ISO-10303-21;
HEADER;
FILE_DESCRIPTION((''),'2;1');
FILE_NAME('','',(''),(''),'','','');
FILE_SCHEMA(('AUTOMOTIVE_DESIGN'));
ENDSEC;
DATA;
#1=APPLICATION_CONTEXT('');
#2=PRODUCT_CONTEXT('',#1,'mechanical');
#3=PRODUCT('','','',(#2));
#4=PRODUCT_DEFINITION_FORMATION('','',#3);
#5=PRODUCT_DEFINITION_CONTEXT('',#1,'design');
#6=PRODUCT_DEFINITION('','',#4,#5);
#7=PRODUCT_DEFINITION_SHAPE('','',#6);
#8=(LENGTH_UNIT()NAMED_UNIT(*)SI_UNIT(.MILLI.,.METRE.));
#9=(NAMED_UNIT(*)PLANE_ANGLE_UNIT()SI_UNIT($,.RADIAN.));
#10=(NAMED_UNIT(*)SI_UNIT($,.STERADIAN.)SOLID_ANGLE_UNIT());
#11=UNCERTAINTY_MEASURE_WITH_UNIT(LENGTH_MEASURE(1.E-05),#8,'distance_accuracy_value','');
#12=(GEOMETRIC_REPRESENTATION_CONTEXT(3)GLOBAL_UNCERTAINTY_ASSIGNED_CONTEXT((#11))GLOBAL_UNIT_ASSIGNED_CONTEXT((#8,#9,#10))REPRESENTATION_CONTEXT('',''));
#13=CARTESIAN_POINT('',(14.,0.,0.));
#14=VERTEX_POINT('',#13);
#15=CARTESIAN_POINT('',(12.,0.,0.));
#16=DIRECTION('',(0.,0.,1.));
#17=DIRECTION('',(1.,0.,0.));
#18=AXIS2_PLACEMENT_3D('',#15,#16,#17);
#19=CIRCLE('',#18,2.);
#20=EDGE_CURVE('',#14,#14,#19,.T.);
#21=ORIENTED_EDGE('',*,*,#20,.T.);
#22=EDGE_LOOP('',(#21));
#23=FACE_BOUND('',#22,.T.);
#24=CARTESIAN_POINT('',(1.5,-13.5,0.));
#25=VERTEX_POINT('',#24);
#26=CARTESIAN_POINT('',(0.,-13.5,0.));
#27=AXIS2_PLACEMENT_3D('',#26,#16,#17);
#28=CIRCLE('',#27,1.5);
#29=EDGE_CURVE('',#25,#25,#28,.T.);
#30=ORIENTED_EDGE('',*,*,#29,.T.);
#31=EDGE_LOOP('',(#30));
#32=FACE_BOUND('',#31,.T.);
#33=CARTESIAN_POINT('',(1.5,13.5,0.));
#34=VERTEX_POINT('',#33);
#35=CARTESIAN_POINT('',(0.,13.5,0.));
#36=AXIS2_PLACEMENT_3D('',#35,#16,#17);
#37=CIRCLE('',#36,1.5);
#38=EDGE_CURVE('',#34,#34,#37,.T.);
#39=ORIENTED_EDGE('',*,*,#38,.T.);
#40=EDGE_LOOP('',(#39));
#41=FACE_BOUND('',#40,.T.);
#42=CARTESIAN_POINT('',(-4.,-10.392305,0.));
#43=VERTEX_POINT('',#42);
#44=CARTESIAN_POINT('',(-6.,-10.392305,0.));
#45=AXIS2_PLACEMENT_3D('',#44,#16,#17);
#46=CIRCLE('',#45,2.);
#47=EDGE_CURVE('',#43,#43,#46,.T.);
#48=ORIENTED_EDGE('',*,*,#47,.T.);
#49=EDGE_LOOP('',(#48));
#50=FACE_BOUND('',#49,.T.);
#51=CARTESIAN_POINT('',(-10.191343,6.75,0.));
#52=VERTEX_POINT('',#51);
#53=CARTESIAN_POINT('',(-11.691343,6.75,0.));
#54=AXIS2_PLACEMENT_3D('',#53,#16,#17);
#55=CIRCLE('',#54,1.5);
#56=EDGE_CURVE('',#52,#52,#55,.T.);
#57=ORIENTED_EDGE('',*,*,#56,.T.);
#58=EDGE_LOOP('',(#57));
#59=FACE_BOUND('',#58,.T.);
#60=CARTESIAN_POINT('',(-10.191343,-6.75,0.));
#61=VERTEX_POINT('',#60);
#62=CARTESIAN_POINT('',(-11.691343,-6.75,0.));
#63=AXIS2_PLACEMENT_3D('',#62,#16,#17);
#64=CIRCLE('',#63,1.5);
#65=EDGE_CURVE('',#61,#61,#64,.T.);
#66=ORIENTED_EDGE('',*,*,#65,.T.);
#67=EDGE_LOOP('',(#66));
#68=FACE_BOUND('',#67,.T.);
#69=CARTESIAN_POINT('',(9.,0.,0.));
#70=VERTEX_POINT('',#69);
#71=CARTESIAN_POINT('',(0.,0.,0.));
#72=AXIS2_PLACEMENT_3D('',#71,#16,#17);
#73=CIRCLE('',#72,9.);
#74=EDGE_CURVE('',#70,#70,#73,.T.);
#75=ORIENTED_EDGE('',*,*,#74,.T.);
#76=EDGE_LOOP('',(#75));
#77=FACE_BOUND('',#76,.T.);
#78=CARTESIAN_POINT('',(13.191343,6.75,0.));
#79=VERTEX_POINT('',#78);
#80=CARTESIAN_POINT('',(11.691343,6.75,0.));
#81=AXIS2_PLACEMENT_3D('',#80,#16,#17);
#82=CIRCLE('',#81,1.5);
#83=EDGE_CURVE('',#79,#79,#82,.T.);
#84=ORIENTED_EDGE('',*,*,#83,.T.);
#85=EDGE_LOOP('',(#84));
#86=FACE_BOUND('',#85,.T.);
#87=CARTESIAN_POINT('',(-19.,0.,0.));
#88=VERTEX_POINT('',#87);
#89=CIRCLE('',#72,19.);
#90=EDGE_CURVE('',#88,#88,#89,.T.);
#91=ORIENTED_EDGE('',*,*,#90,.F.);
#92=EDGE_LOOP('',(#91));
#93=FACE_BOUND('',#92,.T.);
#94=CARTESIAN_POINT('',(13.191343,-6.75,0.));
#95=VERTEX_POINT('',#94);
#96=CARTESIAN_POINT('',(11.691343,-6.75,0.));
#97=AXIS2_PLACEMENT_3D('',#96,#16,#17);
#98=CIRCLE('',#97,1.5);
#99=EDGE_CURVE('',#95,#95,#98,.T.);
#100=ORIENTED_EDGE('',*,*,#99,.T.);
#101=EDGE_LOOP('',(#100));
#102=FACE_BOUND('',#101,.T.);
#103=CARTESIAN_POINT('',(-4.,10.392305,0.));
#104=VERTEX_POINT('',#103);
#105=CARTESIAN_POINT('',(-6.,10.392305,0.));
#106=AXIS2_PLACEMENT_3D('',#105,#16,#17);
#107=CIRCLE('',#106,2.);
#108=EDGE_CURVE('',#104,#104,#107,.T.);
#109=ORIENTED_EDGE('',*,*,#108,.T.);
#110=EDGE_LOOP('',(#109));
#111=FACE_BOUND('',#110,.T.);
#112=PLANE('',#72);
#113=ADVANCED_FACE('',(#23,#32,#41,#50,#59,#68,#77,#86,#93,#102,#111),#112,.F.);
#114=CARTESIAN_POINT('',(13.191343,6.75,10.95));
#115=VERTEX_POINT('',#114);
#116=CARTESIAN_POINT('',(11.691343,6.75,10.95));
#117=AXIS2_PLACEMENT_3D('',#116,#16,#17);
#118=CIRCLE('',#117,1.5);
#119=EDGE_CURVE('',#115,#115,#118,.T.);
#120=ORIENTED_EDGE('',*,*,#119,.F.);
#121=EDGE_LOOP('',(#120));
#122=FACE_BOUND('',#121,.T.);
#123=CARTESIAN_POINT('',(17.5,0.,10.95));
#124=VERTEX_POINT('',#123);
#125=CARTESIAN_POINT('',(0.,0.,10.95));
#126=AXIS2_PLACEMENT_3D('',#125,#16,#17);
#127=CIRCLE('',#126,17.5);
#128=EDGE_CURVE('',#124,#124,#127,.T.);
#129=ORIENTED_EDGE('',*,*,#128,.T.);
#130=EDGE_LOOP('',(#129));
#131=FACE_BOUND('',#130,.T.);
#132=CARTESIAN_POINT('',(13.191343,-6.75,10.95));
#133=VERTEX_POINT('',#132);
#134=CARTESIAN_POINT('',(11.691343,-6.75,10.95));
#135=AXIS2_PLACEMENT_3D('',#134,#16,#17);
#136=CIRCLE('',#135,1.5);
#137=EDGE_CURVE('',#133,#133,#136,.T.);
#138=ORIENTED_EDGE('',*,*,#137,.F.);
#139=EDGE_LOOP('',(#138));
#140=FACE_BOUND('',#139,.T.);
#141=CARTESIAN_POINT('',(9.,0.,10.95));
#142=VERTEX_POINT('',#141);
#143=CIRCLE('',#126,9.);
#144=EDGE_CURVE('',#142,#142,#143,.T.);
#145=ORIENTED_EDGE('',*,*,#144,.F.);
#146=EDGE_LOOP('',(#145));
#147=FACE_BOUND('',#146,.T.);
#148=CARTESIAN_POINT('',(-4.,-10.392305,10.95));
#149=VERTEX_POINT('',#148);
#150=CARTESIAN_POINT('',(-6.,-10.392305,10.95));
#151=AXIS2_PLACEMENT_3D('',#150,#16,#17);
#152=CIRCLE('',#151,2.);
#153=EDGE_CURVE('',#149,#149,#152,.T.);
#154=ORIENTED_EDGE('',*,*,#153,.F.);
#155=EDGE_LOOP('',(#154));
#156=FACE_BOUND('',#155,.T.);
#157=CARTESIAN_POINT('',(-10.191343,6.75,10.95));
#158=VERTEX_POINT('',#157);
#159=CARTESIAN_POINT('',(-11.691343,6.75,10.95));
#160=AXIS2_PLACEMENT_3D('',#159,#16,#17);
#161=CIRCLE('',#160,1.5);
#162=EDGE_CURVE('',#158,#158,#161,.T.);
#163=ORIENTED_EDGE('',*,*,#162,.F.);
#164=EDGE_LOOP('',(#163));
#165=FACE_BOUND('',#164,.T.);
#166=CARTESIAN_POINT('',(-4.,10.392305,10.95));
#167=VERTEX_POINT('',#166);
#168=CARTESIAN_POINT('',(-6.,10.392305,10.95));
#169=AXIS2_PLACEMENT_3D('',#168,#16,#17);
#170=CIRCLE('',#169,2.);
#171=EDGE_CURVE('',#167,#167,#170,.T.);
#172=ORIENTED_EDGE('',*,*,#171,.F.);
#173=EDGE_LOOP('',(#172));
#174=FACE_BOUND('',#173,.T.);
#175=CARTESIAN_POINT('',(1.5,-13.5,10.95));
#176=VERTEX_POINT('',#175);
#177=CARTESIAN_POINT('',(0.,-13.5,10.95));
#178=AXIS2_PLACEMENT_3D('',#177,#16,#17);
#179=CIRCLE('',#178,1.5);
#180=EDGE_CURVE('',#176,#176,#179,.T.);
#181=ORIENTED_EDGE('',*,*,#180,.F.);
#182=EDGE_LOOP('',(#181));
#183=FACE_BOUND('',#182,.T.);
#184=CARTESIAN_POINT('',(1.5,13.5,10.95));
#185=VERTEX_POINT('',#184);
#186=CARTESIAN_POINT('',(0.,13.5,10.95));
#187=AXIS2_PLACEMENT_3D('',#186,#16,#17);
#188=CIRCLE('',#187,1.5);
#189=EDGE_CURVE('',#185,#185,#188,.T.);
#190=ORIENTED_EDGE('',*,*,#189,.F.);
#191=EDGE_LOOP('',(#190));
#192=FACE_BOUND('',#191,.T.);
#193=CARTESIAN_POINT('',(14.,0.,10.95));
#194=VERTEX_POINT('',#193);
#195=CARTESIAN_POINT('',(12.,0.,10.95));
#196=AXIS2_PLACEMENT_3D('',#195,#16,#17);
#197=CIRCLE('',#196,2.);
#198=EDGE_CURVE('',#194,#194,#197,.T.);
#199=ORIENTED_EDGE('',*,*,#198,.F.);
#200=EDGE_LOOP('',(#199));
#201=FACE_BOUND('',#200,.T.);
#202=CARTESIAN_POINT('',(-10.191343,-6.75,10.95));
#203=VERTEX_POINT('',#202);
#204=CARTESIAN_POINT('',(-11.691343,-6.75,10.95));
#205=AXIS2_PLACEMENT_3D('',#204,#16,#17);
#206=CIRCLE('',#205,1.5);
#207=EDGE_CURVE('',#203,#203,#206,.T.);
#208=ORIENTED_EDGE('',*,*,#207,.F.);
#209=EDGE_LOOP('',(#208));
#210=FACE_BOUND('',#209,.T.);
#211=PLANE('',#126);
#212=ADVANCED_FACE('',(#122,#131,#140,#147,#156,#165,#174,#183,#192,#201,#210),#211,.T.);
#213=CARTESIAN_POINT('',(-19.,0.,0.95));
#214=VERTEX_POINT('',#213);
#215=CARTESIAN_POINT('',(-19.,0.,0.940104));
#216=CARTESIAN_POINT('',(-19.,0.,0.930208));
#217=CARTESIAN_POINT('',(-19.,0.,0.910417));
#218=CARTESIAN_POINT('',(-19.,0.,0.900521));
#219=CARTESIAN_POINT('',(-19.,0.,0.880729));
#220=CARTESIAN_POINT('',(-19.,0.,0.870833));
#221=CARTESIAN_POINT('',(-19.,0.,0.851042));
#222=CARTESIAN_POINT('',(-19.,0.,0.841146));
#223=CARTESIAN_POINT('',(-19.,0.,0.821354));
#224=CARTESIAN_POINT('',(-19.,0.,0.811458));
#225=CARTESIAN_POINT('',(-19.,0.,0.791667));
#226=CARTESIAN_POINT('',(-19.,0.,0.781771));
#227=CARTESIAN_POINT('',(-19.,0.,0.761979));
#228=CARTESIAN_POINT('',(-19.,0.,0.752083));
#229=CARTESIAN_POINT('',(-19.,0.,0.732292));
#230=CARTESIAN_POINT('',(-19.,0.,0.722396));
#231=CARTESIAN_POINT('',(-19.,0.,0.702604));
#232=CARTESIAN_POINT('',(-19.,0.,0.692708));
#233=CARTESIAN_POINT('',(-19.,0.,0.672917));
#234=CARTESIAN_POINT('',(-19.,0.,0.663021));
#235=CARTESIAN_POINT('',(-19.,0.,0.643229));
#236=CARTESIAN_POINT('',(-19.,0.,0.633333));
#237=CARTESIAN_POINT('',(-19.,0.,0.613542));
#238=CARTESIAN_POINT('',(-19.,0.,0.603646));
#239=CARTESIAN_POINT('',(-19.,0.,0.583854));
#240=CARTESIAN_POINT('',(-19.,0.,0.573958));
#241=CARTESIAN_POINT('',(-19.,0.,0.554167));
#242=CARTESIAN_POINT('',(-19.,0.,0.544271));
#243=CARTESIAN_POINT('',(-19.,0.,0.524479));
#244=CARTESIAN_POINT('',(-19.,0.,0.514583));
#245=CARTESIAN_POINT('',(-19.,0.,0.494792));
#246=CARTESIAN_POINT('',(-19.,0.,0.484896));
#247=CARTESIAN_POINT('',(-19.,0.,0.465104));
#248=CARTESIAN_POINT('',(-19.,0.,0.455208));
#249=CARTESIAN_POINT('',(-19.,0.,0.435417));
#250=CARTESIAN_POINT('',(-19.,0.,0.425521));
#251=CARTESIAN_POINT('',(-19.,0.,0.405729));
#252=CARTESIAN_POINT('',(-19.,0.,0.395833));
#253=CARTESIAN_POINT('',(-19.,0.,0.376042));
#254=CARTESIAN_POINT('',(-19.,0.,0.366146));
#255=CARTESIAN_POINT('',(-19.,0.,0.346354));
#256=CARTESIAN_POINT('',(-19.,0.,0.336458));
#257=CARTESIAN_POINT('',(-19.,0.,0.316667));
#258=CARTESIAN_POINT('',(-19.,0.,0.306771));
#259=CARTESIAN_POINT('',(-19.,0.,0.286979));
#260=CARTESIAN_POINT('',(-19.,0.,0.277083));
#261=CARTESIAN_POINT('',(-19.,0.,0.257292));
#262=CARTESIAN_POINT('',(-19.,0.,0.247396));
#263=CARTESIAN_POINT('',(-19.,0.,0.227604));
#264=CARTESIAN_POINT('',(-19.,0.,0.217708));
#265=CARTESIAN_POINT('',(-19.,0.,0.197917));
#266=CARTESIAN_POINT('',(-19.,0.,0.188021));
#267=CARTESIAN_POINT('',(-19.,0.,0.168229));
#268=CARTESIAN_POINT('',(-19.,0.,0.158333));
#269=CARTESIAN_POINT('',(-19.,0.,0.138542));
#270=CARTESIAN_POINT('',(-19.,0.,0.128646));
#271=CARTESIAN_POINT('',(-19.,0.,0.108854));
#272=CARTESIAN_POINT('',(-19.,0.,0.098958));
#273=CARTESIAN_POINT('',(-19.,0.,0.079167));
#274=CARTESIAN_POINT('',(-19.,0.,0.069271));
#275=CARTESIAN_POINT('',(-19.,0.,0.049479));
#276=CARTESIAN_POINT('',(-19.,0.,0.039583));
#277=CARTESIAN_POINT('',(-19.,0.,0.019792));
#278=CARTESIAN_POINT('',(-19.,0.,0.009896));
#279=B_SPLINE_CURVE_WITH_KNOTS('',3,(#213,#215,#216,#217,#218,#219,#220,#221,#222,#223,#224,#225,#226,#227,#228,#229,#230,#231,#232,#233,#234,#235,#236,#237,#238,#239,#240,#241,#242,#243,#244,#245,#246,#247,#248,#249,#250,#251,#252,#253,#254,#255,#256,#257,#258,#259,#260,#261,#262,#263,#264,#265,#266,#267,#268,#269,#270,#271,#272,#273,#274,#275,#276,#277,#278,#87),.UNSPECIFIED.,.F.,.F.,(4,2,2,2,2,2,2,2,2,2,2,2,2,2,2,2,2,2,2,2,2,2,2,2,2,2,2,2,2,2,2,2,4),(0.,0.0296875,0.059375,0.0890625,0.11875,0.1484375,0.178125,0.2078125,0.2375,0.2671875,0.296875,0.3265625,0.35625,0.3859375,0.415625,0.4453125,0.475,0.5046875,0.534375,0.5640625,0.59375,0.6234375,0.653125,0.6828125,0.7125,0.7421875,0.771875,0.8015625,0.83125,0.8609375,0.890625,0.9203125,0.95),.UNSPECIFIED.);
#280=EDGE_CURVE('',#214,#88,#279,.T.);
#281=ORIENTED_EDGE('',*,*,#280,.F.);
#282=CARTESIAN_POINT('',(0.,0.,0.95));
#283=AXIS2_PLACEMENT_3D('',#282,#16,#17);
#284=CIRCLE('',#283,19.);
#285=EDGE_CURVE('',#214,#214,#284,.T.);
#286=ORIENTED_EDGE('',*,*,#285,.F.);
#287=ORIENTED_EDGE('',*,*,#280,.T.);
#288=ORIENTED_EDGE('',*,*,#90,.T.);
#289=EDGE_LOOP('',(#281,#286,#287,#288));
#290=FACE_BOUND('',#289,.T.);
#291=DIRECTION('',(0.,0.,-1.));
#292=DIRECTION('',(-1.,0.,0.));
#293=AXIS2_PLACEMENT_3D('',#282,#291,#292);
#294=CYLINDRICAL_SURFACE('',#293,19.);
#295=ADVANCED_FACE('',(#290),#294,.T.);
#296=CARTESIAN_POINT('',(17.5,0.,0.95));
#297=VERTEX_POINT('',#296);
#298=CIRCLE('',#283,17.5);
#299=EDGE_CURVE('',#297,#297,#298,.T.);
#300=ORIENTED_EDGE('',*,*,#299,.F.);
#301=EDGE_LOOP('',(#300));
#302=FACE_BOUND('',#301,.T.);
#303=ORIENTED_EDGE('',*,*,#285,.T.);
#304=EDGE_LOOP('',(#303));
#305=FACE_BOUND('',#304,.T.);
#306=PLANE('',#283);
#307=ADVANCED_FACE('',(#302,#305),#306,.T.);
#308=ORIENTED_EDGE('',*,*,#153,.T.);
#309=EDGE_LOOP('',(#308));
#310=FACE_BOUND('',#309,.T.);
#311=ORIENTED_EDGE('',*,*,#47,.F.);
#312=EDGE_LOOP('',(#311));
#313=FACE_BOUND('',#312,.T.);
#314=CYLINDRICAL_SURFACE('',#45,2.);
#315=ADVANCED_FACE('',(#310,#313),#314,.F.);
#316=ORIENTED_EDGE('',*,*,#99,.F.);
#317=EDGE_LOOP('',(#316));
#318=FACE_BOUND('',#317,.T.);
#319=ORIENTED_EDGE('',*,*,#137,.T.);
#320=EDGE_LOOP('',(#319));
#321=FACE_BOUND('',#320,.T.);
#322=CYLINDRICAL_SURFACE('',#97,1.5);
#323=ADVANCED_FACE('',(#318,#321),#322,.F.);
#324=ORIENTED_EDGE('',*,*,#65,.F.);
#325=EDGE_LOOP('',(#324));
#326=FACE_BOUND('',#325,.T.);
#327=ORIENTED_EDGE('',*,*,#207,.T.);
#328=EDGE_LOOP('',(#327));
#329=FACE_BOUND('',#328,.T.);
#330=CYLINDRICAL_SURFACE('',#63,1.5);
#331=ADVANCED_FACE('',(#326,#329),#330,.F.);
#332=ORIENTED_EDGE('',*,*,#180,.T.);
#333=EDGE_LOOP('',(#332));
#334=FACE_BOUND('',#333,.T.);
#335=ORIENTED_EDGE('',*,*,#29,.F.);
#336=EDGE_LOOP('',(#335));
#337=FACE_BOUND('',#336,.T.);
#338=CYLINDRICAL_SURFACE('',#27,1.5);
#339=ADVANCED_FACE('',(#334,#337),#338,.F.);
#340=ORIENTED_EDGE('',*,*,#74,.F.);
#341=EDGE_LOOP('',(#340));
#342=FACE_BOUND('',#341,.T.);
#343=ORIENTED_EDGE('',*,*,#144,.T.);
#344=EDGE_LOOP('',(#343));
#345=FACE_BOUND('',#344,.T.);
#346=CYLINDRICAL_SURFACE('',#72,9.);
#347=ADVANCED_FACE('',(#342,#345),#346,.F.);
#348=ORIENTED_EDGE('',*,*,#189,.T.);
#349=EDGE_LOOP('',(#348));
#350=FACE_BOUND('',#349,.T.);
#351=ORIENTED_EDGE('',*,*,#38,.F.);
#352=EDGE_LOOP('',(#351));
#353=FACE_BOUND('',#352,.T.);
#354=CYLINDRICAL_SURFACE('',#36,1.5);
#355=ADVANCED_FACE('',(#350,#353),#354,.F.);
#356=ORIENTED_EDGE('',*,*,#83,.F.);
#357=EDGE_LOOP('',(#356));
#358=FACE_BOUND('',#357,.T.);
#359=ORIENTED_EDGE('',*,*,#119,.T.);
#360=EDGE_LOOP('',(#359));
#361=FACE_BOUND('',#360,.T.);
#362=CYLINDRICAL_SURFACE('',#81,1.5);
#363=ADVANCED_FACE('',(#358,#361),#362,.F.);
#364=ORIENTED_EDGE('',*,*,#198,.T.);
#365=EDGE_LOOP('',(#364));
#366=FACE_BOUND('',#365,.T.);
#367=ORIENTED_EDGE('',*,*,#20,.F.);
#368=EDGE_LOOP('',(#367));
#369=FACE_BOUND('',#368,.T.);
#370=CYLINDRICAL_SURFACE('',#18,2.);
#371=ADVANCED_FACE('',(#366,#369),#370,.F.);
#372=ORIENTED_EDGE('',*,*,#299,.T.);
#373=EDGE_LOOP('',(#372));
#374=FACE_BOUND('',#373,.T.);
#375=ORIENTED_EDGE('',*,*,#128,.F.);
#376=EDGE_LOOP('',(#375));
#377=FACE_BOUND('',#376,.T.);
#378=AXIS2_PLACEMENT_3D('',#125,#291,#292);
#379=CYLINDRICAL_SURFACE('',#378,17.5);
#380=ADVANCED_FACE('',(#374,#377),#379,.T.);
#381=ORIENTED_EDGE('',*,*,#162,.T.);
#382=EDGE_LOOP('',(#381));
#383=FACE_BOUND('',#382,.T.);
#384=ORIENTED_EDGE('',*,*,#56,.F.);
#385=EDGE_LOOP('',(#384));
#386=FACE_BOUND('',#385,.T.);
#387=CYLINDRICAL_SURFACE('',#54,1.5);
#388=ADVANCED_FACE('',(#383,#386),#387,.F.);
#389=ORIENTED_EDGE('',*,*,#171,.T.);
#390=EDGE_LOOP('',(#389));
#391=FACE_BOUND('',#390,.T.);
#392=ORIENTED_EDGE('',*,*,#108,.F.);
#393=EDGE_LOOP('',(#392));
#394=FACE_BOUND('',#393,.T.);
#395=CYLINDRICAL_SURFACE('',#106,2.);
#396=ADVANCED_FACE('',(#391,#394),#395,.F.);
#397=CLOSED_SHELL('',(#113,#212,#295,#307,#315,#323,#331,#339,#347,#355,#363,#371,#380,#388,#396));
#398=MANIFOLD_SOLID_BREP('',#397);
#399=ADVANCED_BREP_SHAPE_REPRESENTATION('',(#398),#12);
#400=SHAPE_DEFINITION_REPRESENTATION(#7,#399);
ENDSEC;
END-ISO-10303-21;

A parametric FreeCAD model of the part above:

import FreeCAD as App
import Part
import Sketcher

doc = App.newDocument("Part")
body = doc.addObject("PartDesign::Body", "Body")

sketch1 = body.newObject("Sketcher::SketchObject", "Sketch")
sketch1.AttachmentSupport = (doc.getObject("XY_Plane"), [""])
sketch1.MapMode = "FlatFace"
sketch1.addGeometry(Part.Circle(App.Vector(0, 0, 0), App.Vector(0, 0, 1), 18), False)
sketch1.addConstraint([
    Sketcher.Constraint("Coincident", 0, 3, -1, 1),
    Sketcher.Constraint("Diameter", 0, 35.0),
])
pad1 = body.newObject("PartDesign::Pad", "Pad")
pad1.Profile = sketch1
pad1.Length = 10.95

sketch2 = body.newObject("Sketcher::SketchObject", "Sketch001")
sketch2.AttachmentSupport = (doc.getObject("XY_Plane"), [""])
sketch2.MapMode = "FlatFace"
sketch2.addGeometry([
    Part.Circle(App.Vector(0, 0, 0), App.Vector(0, 0, 1), 19),
    Part.Circle(App.Vector(0, 0, 0), App.Vector(0, 0, 1), 18),
], False)
sketch2.addConstraint([
    Sketcher.Constraint("Coincident", 0, 3, -1, 1),
    Sketcher.Constraint("Coincident", 1, 3, -1, 1),
    Sketcher.Constraint("Diameter", 0, 38.0),
    Sketcher.Constraint("Diameter", 1, 35.0),
])
pad2 = body.newObject("PartDesign::Pad", "Pad001")
pad2.Profile = sketch2
pad2.Length = 0.95

sketch3 = body.newObject("Sketcher::SketchObject", "Sketch002")
sketch3.AttachmentSupport = (doc.getObject("XY_Plane"), [""])
sketch3.MapMode = "FlatFace"
sketch3.AttachmentOffset = App.Placement(App.Vector(0, 0, 10.95), App.Rotation())
sketch3.addGeometry([
    Part.Circle(App.Vector(0, 0, 0), App.Vector(0, 0, 1), 9),
    Part.Circle(App.Vector(0, 13.5, 0), App.Vector(0, 0, 1), 1.5),
    Part.Circle(App.Vector(11.7, 6.8, 0), App.Vector(0, 0, 1), 1.5),
    Part.Circle(App.Vector(11.7, -6.8, 0), App.Vector(0, 0, 1), 1.5),
    Part.Circle(App.Vector(0, -13.5, 0), App.Vector(0, 0, 1), 1.5),
    Part.Circle(App.Vector(-11.7, -6.8, 0), App.Vector(0, 0, 1), 1.5),
    Part.Circle(App.Vector(-11.7, 6.8, 0), App.Vector(0, 0, 1), 1.5),
    Part.Circle(App.Vector(12, 0, 0), App.Vector(0, 0, 1), 2),
    Part.Circle(App.Vector(-6, -10.4, 0), App.Vector(0, 0, 1), 2),
    Part.Circle(App.Vector(-6, 10.4, 0), App.Vector(0, 0, 1), 2),
], False)
sketch3.addConstraint([
    Sketcher.Constraint("Coincident", 0, 3, -1, 1),
    Sketcher.Constraint("Equal", 1, 2),
    Sketcher.Constraint("Equal", 2, 3),
    Sketcher.Constraint("Equal", 3, 4),
    Sketcher.Constraint("Equal", 4, 5),
    Sketcher.Constraint("Equal", 5, 6),
    Sketcher.Constraint("Equal", 7, 8),
    Sketcher.Constraint("Equal", 8, 9),
    Sketcher.Constraint("Symmetric", 1, 3, 4, 3, -1, 1),
    Sketcher.Constraint("Symmetric", 2, 3, 5, 3, -1, 1),
    Sketcher.Constraint("Symmetric", 3, 3, 6, 3, -1, 1),
    Sketcher.Constraint("Symmetric", 3, 3, 5, 3, -2),
    Sketcher.Constraint("Symmetric", 8, 3, 9, 3, -1),
    Sketcher.Constraint("PointOnObject", 1, 3, -2),
    Sketcher.Constraint("PointOnObject", 7, 3, -1),
    Sketcher.Constraint("Diameter", 0, 18.0),
    Sketcher.Constraint("Diameter", 1, 3.0),
    Sketcher.Constraint("Diameter", 7, 4.0),
    Sketcher.Constraint("DistanceX", -1, 1, 7, 3, 12.0),
    Sketcher.Constraint("DistanceX", 8, 3, -1, 1, 6.0),
    Sketcher.Constraint("DistanceY", 4, 3, 1, 3, 27.0),
    Sketcher.Constraint("DistanceY", 3, 3, 2, 3, 13.5),
    Sketcher.Constraint("DistanceX", -1, 1, 2, 3, 11.691343),
    Sketcher.Constraint("DistanceY", 8, 3, -1, 1, 10.392305),
])
pocket1 = body.newObject("PartDesign::Pocket", "Pocket")
pocket1.Profile = sketch3
pocket1.Type = "ThroughAll"

doc.recompute()
